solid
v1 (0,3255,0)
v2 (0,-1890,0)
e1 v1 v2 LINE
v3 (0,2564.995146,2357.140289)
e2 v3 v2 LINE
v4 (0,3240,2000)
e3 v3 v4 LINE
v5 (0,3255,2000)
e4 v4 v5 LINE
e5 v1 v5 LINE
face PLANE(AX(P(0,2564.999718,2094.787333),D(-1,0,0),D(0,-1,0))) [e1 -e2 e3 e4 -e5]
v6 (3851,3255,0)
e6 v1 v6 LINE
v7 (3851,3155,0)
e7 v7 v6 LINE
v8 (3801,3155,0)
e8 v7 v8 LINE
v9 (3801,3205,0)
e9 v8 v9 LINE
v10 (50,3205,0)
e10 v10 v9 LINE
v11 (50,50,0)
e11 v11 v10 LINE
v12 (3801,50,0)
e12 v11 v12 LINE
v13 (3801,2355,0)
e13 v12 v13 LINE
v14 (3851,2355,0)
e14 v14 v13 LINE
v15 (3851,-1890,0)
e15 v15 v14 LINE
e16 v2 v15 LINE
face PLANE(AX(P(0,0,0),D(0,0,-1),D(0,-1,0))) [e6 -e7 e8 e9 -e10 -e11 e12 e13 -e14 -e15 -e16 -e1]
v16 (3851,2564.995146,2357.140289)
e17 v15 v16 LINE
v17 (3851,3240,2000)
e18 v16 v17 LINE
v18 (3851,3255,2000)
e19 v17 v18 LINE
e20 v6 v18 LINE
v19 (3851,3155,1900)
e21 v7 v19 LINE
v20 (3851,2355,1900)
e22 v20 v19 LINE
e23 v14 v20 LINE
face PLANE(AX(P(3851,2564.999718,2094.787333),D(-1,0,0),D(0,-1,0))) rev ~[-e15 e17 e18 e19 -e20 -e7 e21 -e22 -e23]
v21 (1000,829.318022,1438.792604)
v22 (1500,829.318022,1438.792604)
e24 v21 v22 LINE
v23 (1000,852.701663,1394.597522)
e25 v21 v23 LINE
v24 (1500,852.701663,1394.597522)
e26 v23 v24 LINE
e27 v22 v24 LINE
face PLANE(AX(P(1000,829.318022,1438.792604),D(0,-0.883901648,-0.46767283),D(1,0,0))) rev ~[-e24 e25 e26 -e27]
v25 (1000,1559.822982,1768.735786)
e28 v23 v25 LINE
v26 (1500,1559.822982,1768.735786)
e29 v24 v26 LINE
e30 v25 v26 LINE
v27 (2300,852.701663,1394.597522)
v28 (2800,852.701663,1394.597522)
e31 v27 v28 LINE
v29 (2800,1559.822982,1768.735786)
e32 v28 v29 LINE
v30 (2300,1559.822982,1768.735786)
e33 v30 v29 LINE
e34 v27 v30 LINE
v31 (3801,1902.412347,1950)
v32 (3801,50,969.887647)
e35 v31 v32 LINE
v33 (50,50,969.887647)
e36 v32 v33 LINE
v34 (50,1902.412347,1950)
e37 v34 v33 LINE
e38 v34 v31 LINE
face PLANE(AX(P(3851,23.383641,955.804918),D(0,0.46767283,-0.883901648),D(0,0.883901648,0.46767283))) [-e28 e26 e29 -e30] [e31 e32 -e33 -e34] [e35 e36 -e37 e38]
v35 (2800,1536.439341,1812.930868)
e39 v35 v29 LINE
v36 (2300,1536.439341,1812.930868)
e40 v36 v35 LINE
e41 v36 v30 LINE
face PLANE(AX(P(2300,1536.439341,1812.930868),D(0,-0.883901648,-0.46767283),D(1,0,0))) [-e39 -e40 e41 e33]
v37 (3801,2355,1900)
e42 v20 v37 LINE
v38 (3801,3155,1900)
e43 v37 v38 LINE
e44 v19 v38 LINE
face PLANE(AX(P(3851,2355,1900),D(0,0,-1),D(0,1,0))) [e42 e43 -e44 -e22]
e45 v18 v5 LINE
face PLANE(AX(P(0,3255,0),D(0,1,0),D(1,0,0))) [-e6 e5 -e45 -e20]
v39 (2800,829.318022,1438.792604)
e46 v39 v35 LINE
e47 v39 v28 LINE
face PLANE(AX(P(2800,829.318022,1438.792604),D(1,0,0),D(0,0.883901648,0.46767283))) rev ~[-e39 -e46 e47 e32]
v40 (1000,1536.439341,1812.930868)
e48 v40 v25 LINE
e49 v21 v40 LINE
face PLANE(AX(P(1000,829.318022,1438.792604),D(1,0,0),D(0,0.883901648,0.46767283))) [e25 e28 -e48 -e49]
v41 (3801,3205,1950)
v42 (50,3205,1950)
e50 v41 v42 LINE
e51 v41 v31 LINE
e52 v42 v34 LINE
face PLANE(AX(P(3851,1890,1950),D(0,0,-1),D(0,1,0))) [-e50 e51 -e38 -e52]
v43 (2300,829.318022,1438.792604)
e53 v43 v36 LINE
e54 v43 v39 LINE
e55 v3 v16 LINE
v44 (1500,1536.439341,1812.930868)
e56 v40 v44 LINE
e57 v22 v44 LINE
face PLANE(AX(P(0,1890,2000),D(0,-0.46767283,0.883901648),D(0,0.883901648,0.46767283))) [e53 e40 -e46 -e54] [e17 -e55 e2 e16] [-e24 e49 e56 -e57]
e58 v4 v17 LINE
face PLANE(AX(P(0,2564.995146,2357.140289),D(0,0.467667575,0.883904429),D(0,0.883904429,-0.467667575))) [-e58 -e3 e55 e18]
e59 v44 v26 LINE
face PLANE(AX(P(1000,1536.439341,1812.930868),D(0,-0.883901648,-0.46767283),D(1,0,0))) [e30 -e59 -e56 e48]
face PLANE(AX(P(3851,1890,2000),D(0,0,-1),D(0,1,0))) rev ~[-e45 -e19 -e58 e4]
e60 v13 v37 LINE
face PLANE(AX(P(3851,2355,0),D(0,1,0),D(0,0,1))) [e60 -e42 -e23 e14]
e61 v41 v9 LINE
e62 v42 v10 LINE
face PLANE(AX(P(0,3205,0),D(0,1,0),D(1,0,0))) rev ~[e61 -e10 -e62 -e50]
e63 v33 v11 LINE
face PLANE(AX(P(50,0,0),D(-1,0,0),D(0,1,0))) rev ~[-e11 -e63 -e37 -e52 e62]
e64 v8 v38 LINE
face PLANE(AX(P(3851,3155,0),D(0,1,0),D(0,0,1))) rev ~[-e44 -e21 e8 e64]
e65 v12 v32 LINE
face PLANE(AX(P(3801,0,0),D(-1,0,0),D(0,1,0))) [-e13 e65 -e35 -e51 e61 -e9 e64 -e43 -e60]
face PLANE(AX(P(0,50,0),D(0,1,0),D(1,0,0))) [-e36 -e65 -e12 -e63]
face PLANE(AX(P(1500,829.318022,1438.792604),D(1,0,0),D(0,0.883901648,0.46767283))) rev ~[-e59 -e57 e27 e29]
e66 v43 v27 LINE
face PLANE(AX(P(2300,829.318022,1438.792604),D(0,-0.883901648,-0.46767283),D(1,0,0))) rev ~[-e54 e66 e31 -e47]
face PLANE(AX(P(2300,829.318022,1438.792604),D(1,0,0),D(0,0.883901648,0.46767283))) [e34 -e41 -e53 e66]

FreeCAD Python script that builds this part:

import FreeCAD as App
import Part
import Sketcher


def faces_at(feature, points):
    """Names of the faces that lie closest to the given points."""
    faces = feature.Shape.Faces
    near = lambda p: min(range(len(faces)), key=lambda i: faces[i].distToShape(Part.Vertex(*p))[0])
    return sorted({f"Face{near(p) + 1}" for p in points})

doc = App.newDocument("Part")
body = doc.addObject("PartDesign::Body", "Body")

sketch1 = doc.addObject("Sketcher::SketchObject", "Sketch")
body.addObject(sketch1)
sketch1.AttachmentSupport = (doc.XY_Plane, [""])
sketch1.MapMode = "FlatFace"
sketch1.addGeometry([
    Part.LineSegment(App.Vector(0, 3255, 0), App.Vector(0, 0, 0)),
    Part.LineSegment(App.Vector(0, 0, 0), App.Vector(3851, 0, 0)),
    Part.LineSegment(App.Vector(3851, 0, 0), App.Vector(3851, 3255, 0)),
    Part.LineSegment(App.Vector(3851, 3255, 0), App.Vector(0, 3255, 0)),
], False)
sketch1.addConstraint([
    Sketcher.Constraint("Coincident", 0, 2, 1, 1),
    Sketcher.Constraint("Coincident", 1, 2, 2, 1),
    Sketcher.Constraint("Coincident", 2, 2, 3, 1),
    Sketcher.Constraint("Coincident", 3, 2, 0, 1),
    Sketcher.Constraint("Vertical", 0),
    Sketcher.Constraint("Horizontal", 1),
    Sketcher.Constraint("Vertical", 2),
    Sketcher.Constraint("Horizontal", 3),
    Sketcher.Constraint("Coincident", 0, 2, -1, 1),
    Sketcher.Constraint("DistanceX", 1, 1, 1, 2, 3851.0),
    Sketcher.Constraint("DistanceY", 0, 2, 0, 1, 3255.0),
])
pad1 = doc.addObject("PartDesign::Pad", "Pad")
body.addObject(pad1)
pad1.Profile = sketch1
pad1.Length = 2500

sketch2 = doc.addObject("Sketcher::SketchObject", "Sketch001")
body.addObject(sketch2)
sketch2.AttachmentSupport = (doc.YZ_Plane, [""])
sketch2.MapMode = "FlatFace"
sketch2.AttachmentOffset = App.Placement(App.Vector(0, 0, 3851), App.Rotation())
sketch2.addGeometry([
    Part.LineSegment(App.Vector(0, 2500, 0), App.Vector(0, 1000, 0)),
    Part.LineSegment(App.Vector(0, 1000, 0), App.Vector(1890, 2000, 0)),
    Part.LineSegment(App.Vector(1890, 2000, 0), App.Vector(3255, 2000, 0)),
    Part.LineSegment(App.Vector(3255, 2000, 0), App.Vector(3255, 2500, 0)),
    Part.LineSegment(App.Vector(3255, 2500, 0), App.Vector(0, 2500, 0)),
], False)
sketch2.addConstraint([
    Sketcher.Constraint("Coincident", 0, 2, 1, 1),
    Sketcher.Constraint("Coincident", 1, 2, 2, 1),
    Sketcher.Constraint("Coincident", 2, 2, 3, 1),
    Sketcher.Constraint("Coincident", 3, 2, 4, 1),
    Sketcher.Constraint("Coincident", 4, 2, 0, 1),
    Sketcher.Constraint("Vertical", 0),
    Sketcher.Constraint("Horizontal", 2),
    Sketcher.Constraint("Vertical", 3),
    Sketcher.Constraint("Horizontal", 4),
    Sketcher.Constraint("PointOnObject", 0, 2, -2),
    Sketcher.Constraint("DistanceX", 2, 1, 2, 2, 1365.0),
    Sketcher.Constraint("DistanceX", 4, 2, 4, 1, 3255.0),
    Sketcher.Constraint("DistanceY", 0, 2, 0, 1, 1500.0),
    Sketcher.Constraint("DistanceY", 3, 1, 3, 2, 500.0),
    Sketcher.Constraint("DistanceY", -1, 1, 0, 2, 1000.0),
])
pocket1 = doc.addObject("PartDesign::Pocket", "Pocket")
body.addObject(pocket1)
pocket1.Profile = sketch2
pocket1.Type = "ThroughAll"
doc.recompute()

thickness = doc.addObject("PartDesign::Thickness", "Thickness")
body.addObject(thickness)
thickness.Base = (pocket1, faces_at(pocket1, [(1925.5, 1627.5, 0)]))
thickness.Value = 50
thickness.Reversed = True
thickness.Join = "Arc"

sketch3 = doc.addObject("Sketcher::SketchObject", "Sketch002")
body.addObject(sketch3)
sketch3.AttachmentSupport = (doc.YZ_Plane, [""])
sketch3.MapMode = "FlatFace"
sketch3.AttachmentOffset = App.Placement(App.Vector(0, 0, 3851), App.Rotation())
sketch3.addGeometry([
    Part.LineSegment(App.Vector(2355, 1900, 0), App.Vector(2355, 0, 0)),
    Part.LineSegment(App.Vector(2355, 0, 0), App.Vector(3155, 0, 0)),
    Part.LineSegment(App.Vector(3155, 0, 0), App.Vector(3155, 1900, 0)),
    Part.LineSegment(App.Vector(3155, 1900, 0), App.Vector(2355, 1900, 0)),
], False)
sketch3.addConstraint([
    Sketcher.Constraint("Coincident", 0, 2, 1, 1),
    Sketcher.Constraint("Coincident", 1, 2, 2, 1),
    Sketcher.Constraint("Coincident", 2, 2, 3, 1),
    Sketcher.Constraint("Coincident", 3, 2, 0, 1),
    Sketcher.Constraint("Vertical", 0),
    Sketcher.Constraint("Horizontal", 1),
    Sketcher.Constraint("Vertical", 2),
    Sketcher.Constraint("Horizontal", 3),
    Sketcher.Constraint("PointOnObject", 0, 2, -1),
    Sketcher.Constraint("DistanceX", 1, 1, 1, 2, 800.0),
    Sketcher.Constraint("DistanceY", 0, 2, 0, 1, 1900.0),
    Sketcher.Constraint("DistanceX", -1, 1, 0, 2, 2355.0),
])
pocket2 = doc.addObject("PartDesign::Pocket", "Pocket001")
body.addObject(pocket2)
pocket2.Profile = sketch3
pocket2.Length = 50

sketch4 = doc.addObject("Sketcher::SketchObject", "Sketch003")
body.addObject(sketch4)
sketch4.Placement = App.Placement(App.Vector(0, -413.376785, 781.282124), App.Rotation(App.Vector(1, 0, 0), App.Vector(0, 0.883901648, 0.46767283), App.Vector(0, -0.46767283, 0.883901648), "ZXY"))
sketch4.addGeometry([
    Part.LineSegment(App.Vector(1000, 2206, 0), App.Vector(1000, 1406, 0)),
    Part.LineSegment(App.Vector(1000, 1406, 0), App.Vector(1500, 1406, 0)),
    Part.LineSegment(App.Vector(1500, 1406, 0), App.Vector(1500, 2206, 0)),
    Part.LineSegment(App.Vector(1500, 2206, 0), App.Vector(1000, 2206, 0)),
    Part.LineSegment(App.Vector(2300, 2206, 0), App.Vector(2300, 1406, 0)),
    Part.LineSegment(App.Vector(2300, 1406, 0), App.Vector(2800, 1406, 0)),
    Part.LineSegment(App.Vector(2800, 1406, 0), App.Vector(2800, 2206, 0)),
    Part.LineSegment(App.Vector(2800, 2206, 0), App.Vector(2300, 2206, 0)),
], False)
sketch4.addConstraint([
    Sketcher.Constraint("Coincident", 0, 2, 1, 1),
    Sketcher.Constraint("Coincident", 1, 2, 2, 1),
    Sketcher.Constraint("Coincident", 2, 2, 3, 1),
    Sketcher.Constraint("Coincident", 3, 2, 0, 1),
    Sketcher.Constraint("Coincident", 4, 2, 5, 1),
    Sketcher.Constraint("Coincident", 5, 2, 6, 1),
    Sketcher.Constraint("Coincident", 6, 2, 7, 1),
    Sketcher.Constraint("Coincident", 7, 2, 4, 1),
    Sketcher.Constraint("Vertical", 0),
    Sketcher.Constraint("Horizontal", 1),
    Sketcher.Constraint("Vertical", 2),
    Sketcher.Constraint("Horizontal", 3),
    Sketcher.Constraint("Vertical", 4),
    Sketcher.Constraint("Horizontal", 5),
    Sketcher.Constraint("Vertical", 6),
    Sketcher.Constraint("Horizontal", 7),
    Sketcher.Constraint("Horizontal", 1, 2, 4, 2),
    Sketcher.Constraint("Horizontal", 3, 2, 6, 2),
    Sketcher.Constraint("Equal", 3, 5),
    Sketcher.Constraint("DistanceX", 1, 1, 1, 2, 500.0),
    Sketcher.Constraint("DistanceY", 0, 2, 0, 1, 799.999999),
    Sketcher.Constraint("DistanceX", -1, 1, 0, 2, 1000.0),
    Sketcher.Constraint("DistanceX", -1, 1, 4, 2, 2300.0),
    Sketcher.Constraint("DistanceY", -1, 1, 0, 2, 1405.919774),
])
pocket3 = doc.addObject("PartDesign::Pocket", "Pocket002")
body.addObject(pocket3)
pocket3.Profile = sketch4
pocket3.Type = "ThroughAll"

sketch5 = doc.addObject("Sketcher::SketchObject", "Sketch004")
body.addObject(sketch5)
sketch5.AttachmentSupport = (doc.YZ_Plane, [""])
sketch5.MapMode = "FlatFace"
sketch5.addGeometry([
    Part.LineSegment(App.Vector(1890, 2000, 0), App.Vector(2565, 2357, 0)),
    Part.LineSegment(App.Vector(2565, 2357, 0), App.Vector(3240, 2000, 0)),
    Part.LineSegment(App.Vector(3240, 2000, 0), App.Vector(1890, 2000, 0)),
    Part.LineSegment(App.Vector(0, 1000, 0), App.Vector(0, 0, 0)),
    Part.LineSegment(App.Vector(0, 0, 0), App.Vector(-1890, 0, 0)),
    Part.LineSegment(App.Vector(-1890, 0, 0), App.Vector(0, 1000, 0)),
], False)
sketch5.addConstraint([
    Sketcher.Constraint("Coincident", 0, 2, 1, 1),
    Sketcher.Constraint("Coincident", 1, 2, 2, 1),
    Sketcher.Constraint("Coincident", 2, 2, 0, 1),
    Sketcher.Constraint("Coincident", 3, 2, 4, 1),
    Sketcher.Constraint("Coincident", 4, 2, 5, 1),
    Sketcher.Constraint("Coincident", 5, 2, 3, 1),
    Sketcher.Constraint("Horizontal", 2),
    Sketcher.Constraint("Vertical", 3),
    Sketcher.Constraint("Horizontal", 4),
    Sketcher.Constraint("Coincident", 3, 2, -1, 1),
    Sketcher.Constraint("Parallel", 0, 5),
    Sketcher.Constraint("DistanceX", 2, 2, 2, 1, 1350.0),
    Sketcher.Constraint("DistanceX", 4, 2, 4, 1, 1890.0),
    Sketcher.Constraint("DistanceY", 3, 2, 3, 1, 1000.0),
    Sketcher.Constraint("DistanceX", -1, 1, 1, 2, 3240.0),
    Sketcher.Constraint("DistanceY", -1, 1, 1, 2, 2000.0),
    Sketcher.Constraint("DistanceY", -1, 1, 0, 2, 2357.140289),
])
pad2 = doc.addObject("PartDesign::Pad", "Pad001")
body.addObject(pad2)
pad2.Profile = sketch5
pad2.Type = "UpToLast"

doc.recompute()
